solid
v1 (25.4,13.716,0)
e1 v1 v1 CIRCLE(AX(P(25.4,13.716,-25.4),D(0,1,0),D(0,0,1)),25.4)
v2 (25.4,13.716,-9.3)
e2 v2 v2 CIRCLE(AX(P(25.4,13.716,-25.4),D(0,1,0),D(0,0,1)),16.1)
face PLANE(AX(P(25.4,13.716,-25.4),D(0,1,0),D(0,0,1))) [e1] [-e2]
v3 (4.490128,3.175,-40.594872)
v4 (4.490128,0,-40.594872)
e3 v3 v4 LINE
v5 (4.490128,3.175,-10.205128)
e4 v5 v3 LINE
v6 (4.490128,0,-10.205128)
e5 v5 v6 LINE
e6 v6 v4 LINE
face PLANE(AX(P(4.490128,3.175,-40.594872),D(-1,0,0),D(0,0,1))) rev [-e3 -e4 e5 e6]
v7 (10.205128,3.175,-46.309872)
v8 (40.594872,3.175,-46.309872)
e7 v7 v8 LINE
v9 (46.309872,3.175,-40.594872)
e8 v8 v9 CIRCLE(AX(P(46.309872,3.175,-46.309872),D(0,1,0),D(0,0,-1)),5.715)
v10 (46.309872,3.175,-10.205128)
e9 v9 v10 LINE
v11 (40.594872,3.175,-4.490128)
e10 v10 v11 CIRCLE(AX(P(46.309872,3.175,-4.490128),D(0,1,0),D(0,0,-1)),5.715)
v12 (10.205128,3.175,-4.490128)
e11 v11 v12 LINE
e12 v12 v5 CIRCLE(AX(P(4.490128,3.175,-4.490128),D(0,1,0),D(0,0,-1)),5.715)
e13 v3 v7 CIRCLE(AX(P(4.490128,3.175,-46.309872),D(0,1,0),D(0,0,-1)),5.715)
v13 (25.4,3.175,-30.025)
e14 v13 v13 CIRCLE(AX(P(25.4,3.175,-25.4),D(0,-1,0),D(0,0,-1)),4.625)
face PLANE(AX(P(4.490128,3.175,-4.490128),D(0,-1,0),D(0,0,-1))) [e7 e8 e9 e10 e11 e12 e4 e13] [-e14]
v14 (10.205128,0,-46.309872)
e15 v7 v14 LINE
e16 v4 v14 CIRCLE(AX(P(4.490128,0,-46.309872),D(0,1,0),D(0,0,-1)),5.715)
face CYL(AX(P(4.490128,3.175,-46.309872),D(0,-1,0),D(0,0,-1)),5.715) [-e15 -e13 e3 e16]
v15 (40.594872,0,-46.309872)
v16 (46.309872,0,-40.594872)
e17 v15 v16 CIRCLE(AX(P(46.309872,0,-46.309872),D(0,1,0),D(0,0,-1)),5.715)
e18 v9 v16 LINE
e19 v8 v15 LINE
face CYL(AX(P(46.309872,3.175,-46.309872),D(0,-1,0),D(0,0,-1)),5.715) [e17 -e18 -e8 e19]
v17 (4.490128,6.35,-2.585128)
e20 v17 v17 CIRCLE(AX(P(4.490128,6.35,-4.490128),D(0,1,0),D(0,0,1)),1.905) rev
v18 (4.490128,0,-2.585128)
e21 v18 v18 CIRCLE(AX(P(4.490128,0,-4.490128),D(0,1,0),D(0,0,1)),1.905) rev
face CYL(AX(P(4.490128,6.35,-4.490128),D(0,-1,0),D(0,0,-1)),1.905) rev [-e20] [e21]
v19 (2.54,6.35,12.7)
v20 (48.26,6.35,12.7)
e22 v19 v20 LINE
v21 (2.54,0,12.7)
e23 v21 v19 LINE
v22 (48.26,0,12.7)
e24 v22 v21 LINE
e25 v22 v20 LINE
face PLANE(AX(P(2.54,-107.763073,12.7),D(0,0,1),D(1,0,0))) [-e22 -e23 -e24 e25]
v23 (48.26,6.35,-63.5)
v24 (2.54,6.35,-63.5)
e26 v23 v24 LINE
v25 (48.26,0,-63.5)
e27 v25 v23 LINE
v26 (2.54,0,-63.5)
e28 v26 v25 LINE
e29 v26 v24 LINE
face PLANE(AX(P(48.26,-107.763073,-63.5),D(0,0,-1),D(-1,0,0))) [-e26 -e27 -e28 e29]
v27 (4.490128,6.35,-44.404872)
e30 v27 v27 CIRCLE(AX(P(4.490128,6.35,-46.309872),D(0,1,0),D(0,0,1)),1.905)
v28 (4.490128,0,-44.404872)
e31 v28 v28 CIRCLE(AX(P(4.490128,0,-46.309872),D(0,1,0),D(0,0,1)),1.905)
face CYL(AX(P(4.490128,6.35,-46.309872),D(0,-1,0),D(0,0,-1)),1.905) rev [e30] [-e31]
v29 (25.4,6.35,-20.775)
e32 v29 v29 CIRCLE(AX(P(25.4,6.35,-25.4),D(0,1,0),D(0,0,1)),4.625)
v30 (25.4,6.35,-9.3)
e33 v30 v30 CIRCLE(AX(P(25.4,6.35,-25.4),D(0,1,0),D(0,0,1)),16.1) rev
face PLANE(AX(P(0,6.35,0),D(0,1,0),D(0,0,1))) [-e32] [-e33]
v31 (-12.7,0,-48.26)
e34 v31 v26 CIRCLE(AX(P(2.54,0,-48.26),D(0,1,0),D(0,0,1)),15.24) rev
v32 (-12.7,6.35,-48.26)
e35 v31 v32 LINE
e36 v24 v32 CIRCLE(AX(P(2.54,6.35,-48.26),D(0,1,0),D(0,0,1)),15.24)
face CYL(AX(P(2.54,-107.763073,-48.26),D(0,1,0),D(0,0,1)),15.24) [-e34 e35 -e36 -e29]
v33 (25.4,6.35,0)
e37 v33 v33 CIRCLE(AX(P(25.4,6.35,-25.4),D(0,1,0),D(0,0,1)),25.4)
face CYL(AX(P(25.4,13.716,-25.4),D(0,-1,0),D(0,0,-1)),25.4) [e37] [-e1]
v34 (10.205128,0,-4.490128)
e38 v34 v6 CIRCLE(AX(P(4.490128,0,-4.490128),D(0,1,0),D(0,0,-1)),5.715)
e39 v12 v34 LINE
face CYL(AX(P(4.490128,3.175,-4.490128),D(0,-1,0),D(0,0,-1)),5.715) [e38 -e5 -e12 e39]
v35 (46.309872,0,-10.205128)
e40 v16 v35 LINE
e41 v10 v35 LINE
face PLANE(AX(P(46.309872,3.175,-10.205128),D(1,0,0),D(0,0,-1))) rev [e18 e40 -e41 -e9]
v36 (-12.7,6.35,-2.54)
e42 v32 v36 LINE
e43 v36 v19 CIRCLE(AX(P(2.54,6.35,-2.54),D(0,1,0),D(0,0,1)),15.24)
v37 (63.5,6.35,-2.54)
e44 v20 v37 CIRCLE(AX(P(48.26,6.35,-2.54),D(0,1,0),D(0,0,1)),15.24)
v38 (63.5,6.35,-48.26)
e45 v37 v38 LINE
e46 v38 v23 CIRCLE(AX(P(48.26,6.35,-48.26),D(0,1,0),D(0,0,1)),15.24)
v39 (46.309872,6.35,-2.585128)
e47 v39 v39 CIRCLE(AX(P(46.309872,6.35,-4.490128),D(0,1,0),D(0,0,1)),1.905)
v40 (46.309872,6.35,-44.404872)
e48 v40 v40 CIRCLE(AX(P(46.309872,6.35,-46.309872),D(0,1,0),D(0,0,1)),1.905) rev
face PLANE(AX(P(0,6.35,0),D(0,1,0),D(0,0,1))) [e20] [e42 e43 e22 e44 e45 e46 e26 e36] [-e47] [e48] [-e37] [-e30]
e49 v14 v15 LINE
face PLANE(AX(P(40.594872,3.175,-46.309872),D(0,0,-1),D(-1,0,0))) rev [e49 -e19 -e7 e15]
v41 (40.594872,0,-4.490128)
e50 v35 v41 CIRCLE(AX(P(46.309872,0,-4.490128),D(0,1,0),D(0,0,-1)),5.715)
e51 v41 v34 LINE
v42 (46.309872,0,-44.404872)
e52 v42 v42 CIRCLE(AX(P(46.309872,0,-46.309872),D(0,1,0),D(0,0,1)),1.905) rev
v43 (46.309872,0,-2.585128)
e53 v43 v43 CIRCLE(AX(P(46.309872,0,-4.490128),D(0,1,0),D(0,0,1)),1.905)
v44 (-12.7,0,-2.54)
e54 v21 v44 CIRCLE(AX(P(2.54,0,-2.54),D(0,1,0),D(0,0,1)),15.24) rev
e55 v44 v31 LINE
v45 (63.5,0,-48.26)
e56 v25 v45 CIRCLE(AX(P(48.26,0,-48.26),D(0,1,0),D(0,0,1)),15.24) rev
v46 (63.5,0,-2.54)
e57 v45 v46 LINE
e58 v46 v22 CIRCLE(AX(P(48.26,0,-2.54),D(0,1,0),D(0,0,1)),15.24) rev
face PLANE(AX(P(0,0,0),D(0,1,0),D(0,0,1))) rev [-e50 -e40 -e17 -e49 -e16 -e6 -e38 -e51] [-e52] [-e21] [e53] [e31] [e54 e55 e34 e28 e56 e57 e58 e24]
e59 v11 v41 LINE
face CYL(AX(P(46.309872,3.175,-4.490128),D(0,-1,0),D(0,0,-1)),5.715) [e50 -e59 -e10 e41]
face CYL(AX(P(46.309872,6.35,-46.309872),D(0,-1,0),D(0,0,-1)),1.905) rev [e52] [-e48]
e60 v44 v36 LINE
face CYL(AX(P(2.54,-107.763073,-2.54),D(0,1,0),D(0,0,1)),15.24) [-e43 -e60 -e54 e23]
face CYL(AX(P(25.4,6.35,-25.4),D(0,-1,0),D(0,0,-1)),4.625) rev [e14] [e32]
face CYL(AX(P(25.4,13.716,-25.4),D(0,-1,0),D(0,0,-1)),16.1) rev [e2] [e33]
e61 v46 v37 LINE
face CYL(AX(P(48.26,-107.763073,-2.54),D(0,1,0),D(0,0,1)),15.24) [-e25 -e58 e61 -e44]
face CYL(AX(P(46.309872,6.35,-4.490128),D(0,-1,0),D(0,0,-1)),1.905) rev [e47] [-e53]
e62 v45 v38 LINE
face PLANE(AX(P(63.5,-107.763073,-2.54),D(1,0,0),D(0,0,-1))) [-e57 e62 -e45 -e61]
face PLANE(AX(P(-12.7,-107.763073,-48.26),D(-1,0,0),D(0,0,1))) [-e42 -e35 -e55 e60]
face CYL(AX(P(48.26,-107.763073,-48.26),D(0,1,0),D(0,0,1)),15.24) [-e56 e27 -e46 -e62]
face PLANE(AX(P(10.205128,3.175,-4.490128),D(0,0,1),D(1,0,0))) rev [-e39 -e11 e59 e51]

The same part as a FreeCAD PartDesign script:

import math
import FreeCAD as App
import Part
import Sketcher

V = App.Vector
Q = App.Units.Quantity


def edges_at(feature, points):
    """Names of the edges that pass closest to the given points."""
    edges = feature.Shape.Edges
    near = lambda p: min(range(len(edges)), key=lambda i: edges[i].distToShape(Part.Vertex(*p))[0])
    return sorted({f"Edge{near(p) + 1}" for p in points})


def add_polygon(sketch, points):
    """Adds a closed chain of lines whose ends are joined by coincident constraints."""
    first, n = sketch.GeometryCount, len(points)
    for a, b in zip(points, points[1:] + points[:1]):
        sketch.addGeometry(Part.LineSegment(App.Vector(*a, 0), App.Vector(*b, 0)), False)
    for i in range(n):
        sketch.addConstraint(Sketcher.Constraint("Coincident", first + i, 2, first + (i + 1) % n, 1))

doc = App.newDocument("Part")
params = doc.addObject("Spreadsheet::Sheet", "Params")
for row, (alias, value) in enumerate([
    ("sketch1_diameter", "0.15 in"),
    ("sketch1_width", "2 in"),
    ("pad1_length", "0.25 in"),
    ("fillet_radius", "0.1 in"),
    ("sketch2_diameter", "0.15 in"),
    ("sketch2_radius", "0.225 in"),
    ("pocket1_length", "0.125 in"),
    ("sketch3_radius", "0.6 in"),
    ("sketch3_radius2", "0.1 in"),
    ("sketch3_width", "1.8 in"),
    ("pad2_length", "0.25 in"),
    ("sketch4_diameter", "2 in"),
    ("pad3_length", "0.29 in"),
], start=1):
    params.set(f"A{row}", alias)
    params.set(f"B{row}", "=" + value)
    params.setAlias(f"B{row}", alias)

body = doc.addObject("PartDesign::Body", "Body")

sketch1 = doc.addObject("Sketcher::SketchObject", "Sketch")
body.addObject(sketch1)
sketch1.AttachmentSupport = (doc.XZ_Plane, [""])
sketch1.MapMode = "FlatFace"
add_polygon(sketch1, [(0, -50.8), (0, 0), (50.8, 0), (50.8, -50.8)])
sketch1.addGeometry(Part.Circle(V(4.5, -4.5, 0), V(0, 0, 1), 1.9), False)
sketch1.addGeometry(Part.Circle(V(46.3, -4.5, 0), V(0, 0, 1), 1.9), False)
sketch1.addGeometry(Part.Circle(V(4.5, -46.3, 0), V(0, 0, 1), 1.9), False)
sketch1.addGeometry(Part.Circle(V(25.4, -25.4, 0), V(0, 0, 1), 4.6), False)
sketch1.addGeometry(Part.Circle(V(46.3, -46.3, 0), V(0, 0, 1), 1.9), False)
sketch1.addConstraint(Sketcher.Constraint("Vertical", 0))
sketch1.addConstraint(Sketcher.Constraint("Horizontal", 1))
sketch1.addConstraint(Sketcher.Constraint("Vertical", 2))
sketch1.addConstraint(Sketcher.Constraint("Horizontal", 3))
sketch1.addConstraint(Sketcher.Constraint("Coincident", 0, 2, -1, 1))
sketch1.addConstraint(Sketcher.Constraint("Equal", 4, 5))
sketch1.addConstraint(Sketcher.Constraint("Equal", 5, 6))
sketch1.addConstraint(Sketcher.Constraint("Equal", 6, 8))
sketch1.addConstraint(Sketcher.Constraint("Horizontal", 4, 3, 5, 3))
sketch1.addConstraint(Sketcher.Constraint("Horizontal", 6, 3, 8, 3))
sketch1.addConstraint(Sketcher.Constraint("Vertical", 4, 3, 6, 3))
sketch1.addConstraint(Sketcher.Constraint("Vertical", 5, 3, 8, 3))
sketch1.addConstraint(Sketcher.Constraint("Equal", 3, 0))
sketch1.addConstraint(Sketcher.Constraint("Diameter", 4, Q("0.15 in")))
sketch1.addConstraint(Sketcher.Constraint("DistanceX", 1, 1, 1, 2, Q("2 in")))
sketch1.addConstraint(Sketcher.Constraint("DistanceX", -1, 1, 7, 3, Q("1 in")))
sketch1.addConstraint(Sketcher.Constraint("DistanceY", 7, 3, -1, 1, Q("1 in")))
sketch1.addConstraint(Sketcher.Constraint("Diameter", 7, Q("9.25 mm")))
sketch1.addConstraint(Sketcher.Constraint("DistanceX", -1, 1, 4, 3, Q("4.490128 mm")))
sketch1.addConstraint(Sketcher.Constraint("DistanceY", 4, 3, -1, 1, Q("4.490128 mm")))
sketch1.addConstraint(Sketcher.Constraint("DistanceX", -1, 1, 5, 3, Q("46.309872 mm")))
sketch1.addConstraint(Sketcher.Constraint("DistanceY", 6, 3, -1, 1, Q("46.309872 mm")))
sketch1.setExpression("Constraints[17]", "Params.sketch1_diameter")
sketch1.setExpression("Constraints[18]", "Params.sketch1_width")
pad1 = doc.addObject("PartDesign::Pad", "Pad")
body.addObject(pad1)
pad1.Profile = sketch1
pad1.setExpression("Length", "Params.pad1_length")
pad1.Reversed = True
doc.recompute()

fillet = doc.addObject("PartDesign::Fillet", "Fillet")
body.addObject(fillet)
fillet.Base = (pad1, edges_at(pad1, [
    (50.8, 3.175, -50.8),
    (50.8, 3.175, 0),
    (0, 3.175, 0),
    (0, 3.175, -50.8),
]))
fillet.setExpression("Radius", "Params.fillet_radius")

sketch2 = doc.addObject("Sketcher::SketchObject", "Sketch001")
body.addObject(sketch2)
sketch2.AttachmentSupport = (doc.XZ_Plane, [""])
sketch2.MapMode = "FlatFace"
sketch2.addGeometry(Part.Circle(V(4.5, -4.5, 0), V(0, 0, 1), 1.9), False)
sketch2.addGeometry(Part.LineSegment(V(40.6, -4.5, 0), V(10.2, -4.5, 0)), False)
sketch2.addGeometry(Part.ArcOfCircle(Part.Circle(V(4.5, -4.5, 0), V(0, 0, 1), 5.7), math.radians(-90), math.radians(0)), False)
sketch2.addGeometry(Part.LineSegment(V(4.5, -10.2, 0), V(4.5, -40.6, 0)), False)
sketch2.addGeometry(Part.ArcOfCircle(Part.Circle(V(4.5, -46.3, 0), V(0, 0, 1), 5.7), math.radians(0), math.radians(90)), False)
sketch2.addGeometry(Part.LineSegment(V(10.2, -46.3, 0), V(40.6, -46.3, 0)), False)
sketch2.addGeometry(Part.ArcOfCircle(Part.Circle(V(46.3, -46.3, 0), V(0, 0, 1), 5.7), math.radians(90), math.radians(180)), False)
sketch2.addGeometry(Part.LineSegment(V(46.3, -40.6, 0), V(46.3, -10.2, 0)), False)
sketch2.addGeometry(Part.ArcOfCircle(Part.Circle(V(46.3, -4.5, 0), V(0, 0, 1), 5.7), math.radians(-180), math.radians(-90)), False)
sketch2.addConstraint(Sketcher.Constraint("Coincident", 1, 2, 2, 2))
sketch2.addConstraint(Sketcher.Constraint("Coincident", 2, 1, 3, 1))
sketch2.addConstraint(Sketcher.Constraint("Coincident", 3, 2, 4, 2))
sketch2.addConstraint(Sketcher.Constraint("Coincident", 4, 1, 5, 1))
sketch2.addConstraint(Sketcher.Constraint("Coincident", 5, 2, 6, 2))
sketch2.addConstraint(Sketcher.Constraint("Coincident", 6, 1, 7, 1))
sketch2.addConstraint(Sketcher.Constraint("Coincident", 7, 2, 8, 2))
sketch2.addConstraint(Sketcher.Constraint("Coincident", 8, 1, 1, 1))
sketch2.addConstraint(Sketcher.Constraint("Horizontal", 1))
sketch2.addConstraint(Sketcher.Constraint("Vertical", 3))
sketch2.addConstraint(Sketcher.Constraint("Horizontal", 5))
sketch2.addConstraint(Sketcher.Constraint("Vertical", 7))
sketch2.addConstraint(Sketcher.Constraint("Coincident", 2, 3, 0, 3))
sketch2.addConstraint(Sketcher.Constraint("Equal", 2, 4))
sketch2.addConstraint(Sketcher.Constraint("Equal", 4, 6))
sketch2.addConstraint(Sketcher.Constraint("Equal", 6, 8))
sketch2.addConstraint(Sketcher.Constraint("Horizontal", 4, 3, 6, 3))
sketch2.addConstraint(Sketcher.Constraint("Horizontal", 2, 3, 8, 3))
sketch2.addConstraint(Sketcher.Constraint("Horizontal", 8, 3, 1, 2))
sketch2.addConstraint(Sketcher.Constraint("Horizontal", 6, 3, 4, 1))
sketch2.addConstraint(Sketcher.Constraint("Vertical", 2, 3, 4, 3))
sketch2.addConstraint(Sketcher.Constraint("Vertical", 6, 3, 8, 3))
sketch2.addConstraint(Sketcher.Constraint("Vertical", 4, 3, 2, 1))
sketch2.addConstraint(Sketcher.Constraint("Vertical", 8, 3, 6, 1))
sketch2.addConstraint(Sketcher.Constraint("Equal", 5, 3))
sketch2.addConstraint(Sketcher.Constraint("Diameter", 0, Q("0.15 in")))
sketch2.addConstraint(Sketcher.Constraint("Radius", 2, Q("0.225 in")))
sketch2.addConstraint(Sketcher.Constraint("DistanceX", 1, 2, 1, 1, Q("30.389744 mm")))
sketch2.addConstraint(Sketcher.Constraint("DistanceX", -1, 1, 0, 3, Q("4.490128 mm")))
sketch2.addConstraint(Sketcher.Constraint("DistanceY", 0, 3, -1, 1, Q("4.490128 mm")))
sketch2.setExpression("Constraints[25]", "Params.sketch2_diameter")
sketch2.setExpression("Constraints[26]", "Params.sketch2_radius")
pocket1 = doc.addObject("PartDesign::Pocket", "Pocket")
body.addObject(pocket1)
pocket1.Profile = sketch2
pocket1.setExpression("Length", "Params.pocket1_length")

sketch3 = doc.addObject("Sketcher::SketchObject", "Sketch002")
body.addObject(sketch3)
sketch3.AttachmentSupport = (doc.XZ_Plane, [""])
sketch3.MapMode = "FlatFace"
sketch3.AttachmentOffset = App.Placement(V(0, 0, -0.25 * 25.4), App.Rotation())
sketch3.addGeometry(Part.LineSegment(V(63.5, -2.5, 0), V(63.5, -48.3, 0)), False)
sketch3.addGeometry(Part.ArcOfCircle(Part.Circle(V(48.3, -48.3, 0), V(0, 0, 1), 15.2), math.radians(-90), math.radians(0)), False)
sketch3.addGeometry(Part.LineSegment(V(48.3, -63.5, 0), V(2.5, -63.5, 0)), False)
sketch3.addGeometry(Part.ArcOfCircle(Part.Circle(V(2.5, -48.3, 0), V(0, 0, 1), 15.2), math.radians(-180), math.radians(-90)), False)
sketch3.addGeometry(Part.LineSegment(V(-12.7, -48.3, 0), V(-12.7, -2.5, 0)), False)
sketch3.addGeometry(Part.ArcOfCircle(Part.Circle(V(2.5, -2.5, 0), V(0, 0, 1), 15.2), math.radians(90), math.radians(180)), False)
sketch3.addGeometry(Part.LineSegment(V(2.5, 12.7, 0), V(48.3, 12.7, 0)), False)
sketch3.addGeometry(Part.ArcOfCircle(Part.Circle(V(48.3, -2.5, 0), V(0, 0, 1), 15.2), math.radians(0), math.radians(90)), False)
sketch3.addGeometry(Part.LineSegment(V(50.8, -48.3, 0), V(50.8, -2.5, 0)), False)
sketch3.addGeometry(Part.ArcOfCircle(Part.Circle(V(48.3, -2.5, 0), V(0, 0, 1), 2.5), math.radians(0), math.radians(90)), False)
sketch3.addGeometry(Part.LineSegment(V(48.3, 0, 0), V(2.5, 0, 0)), False)
sketch3.addGeometry(Part.ArcOfCircle(Part.Circle(V(2.5, -2.5, 0), V(0, 0, 1), 2.5), math.radians(90), math.radians(180)), False)
sketch3.addGeometry(Part.LineSegment(V(0, -2.5, 0), V(0, -48.3, 0)), False)
sketch3.addGeometry(Part.ArcOfCircle(Part.Circle(V(2.5, -48.3, 0), V(0, 0, 1), 2.5), math.radians(-180), math.radians(-90)), False)
sketch3.addGeometry(Part.LineSegment(V(2.5, -50.8, 0), V(48.3, -50.8, 0)), False)
sketch3.addGeometry(Part.ArcOfCircle(Part.Circle(V(48.3, -48.3, 0), V(0, 0, 1), 2.5), math.radians(-90), math.radians(0)), False)
sketch3.addConstraint(Sketcher.Constraint("Tangent", 0, 2, 1, 2))
sketch3.addConstraint(Sketcher.Constraint("Tangent", 1, 1, 2, 1))
sketch3.addConstraint(Sketcher.Constraint("Tangent", 2, 2, 3, 2))
sketch3.addConstraint(Sketcher.Constraint("Tangent", 3, 1, 4, 1))
sketch3.addConstraint(Sketcher.Constraint("Tangent", 4, 2, 5, 2))
sketch3.addConstraint(Sketcher.Constraint("Tangent", 5, 1, 6, 1))
sketch3.addConstraint(Sketcher.Constraint("Tangent", 6, 2, 7, 2))
sketch3.addConstraint(Sketcher.Constraint("Tangent", 7, 1, 0, 1))
sketch3.addConstraint(Sketcher.Constraint("Tangent", 8, 2, 9, 1))
sketch3.addConstraint(Sketcher.Constraint("Tangent", 9, 2, 10, 1))
sketch3.addConstraint(Sketcher.Constraint("Tangent", 10, 2, 11, 1))
sketch3.addConstraint(Sketcher.Constraint("Tangent", 11, 2, 12, 1))
sketch3.addConstraint(Sketcher.Constraint("Tangent", 12, 2, 13, 1))
sketch3.addConstraint(Sketcher.Constraint("Tangent", 13, 2, 14, 1))
sketch3.addConstraint(Sketcher.Constraint("Tangent", 14, 2, 15, 1))
sketch3.addConstraint(Sketcher.Constraint("Tangent", 15, 2, 8, 1))
sketch3.addConstraint(Sketcher.Constraint("Vertical", 0))
sketch3.addConstraint(Sketcher.Constraint("Horizontal", 2))
sketch3.addConstraint(Sketcher.Constraint("Vertical", 4))
sketch3.addConstraint(Sketcher.Constraint("Horizontal", 6))
sketch3.addConstraint(Sketcher.Constraint("Vertical", 8))
sketch3.addConstraint(Sketcher.Constraint("Horizontal", 10))
sketch3.addConstraint(Sketcher.Constraint("Vertical", 12))
sketch3.addConstraint(Sketcher.Constraint("Horizontal", 14))
sketch3.addConstraint(Sketcher.Constraint("Coincident", 9, 3, 7, 3))
sketch3.addConstraint(Sketcher.Constraint("Coincident", 11, 3, 5, 3))
sketch3.addConstraint(Sketcher.Constraint("Coincident", 13, 3, 3, 3))
sketch3.addConstraint(Sketcher.Constraint("Equal", 1, 3))
sketch3.addConstraint(Sketcher.Constraint("Equal", 3, 5))
sketch3.addConstraint(Sketcher.Constraint("Equal", 5, 7))
sketch3.addConstraint(Sketcher.Constraint("Equal", 13, 15))
sketch3.addConstraint(Sketcher.Constraint("PointOnObject", 9, 2, -1))
sketch3.addConstraint(Sketcher.Constraint("PointOnObject", 11, 2, -2))
sketch3.addConstraint(Sketcher.Constraint("Equal", 14, 0))
sketch3.addConstraint(Sketcher.Constraint("Radius", 1, Q("0.6 in")))
sketch3.addConstraint(Sketcher.Constraint("Radius", 9, Q("0.1 in")))
sketch3.addConstraint(Sketcher.Constraint("DistanceX", 2, 2, 2, 1, Q("1.8 in")))
sketch3.setExpression("Constraints[34]", "Params.sketch3_radius")
sketch3.setExpression("Constraints[35]", "Params.sketch3_radius2")
sketch3.setExpression("Constraints[36]", "Params.sketch3_width")
pad2 = doc.addObject("PartDesign::Pad", "Pad001")
body.addObject(pad2)
pad2.Profile = sketch3
pad2.setExpression("Length", "Params.pad2_length")

sketch4 = doc.addObject("Sketcher::SketchObject", "Sketch003")
body.addObject(sketch4)
sketch4.AttachmentSupport = (doc.XZ_Plane, [""])
sketch4.MapMode = "FlatFace"
sketch4.AttachmentOffset = App.Placement(V(0, 0, -0.25 * 25.4), App.Rotation())
sketch4.addGeometry(Part.Circle(V(25, -25, 0), V(0, 0, 1), 25), False)
sketch4.addGeometry(Part.Circle(V(25, -25, 0), V(0, 0, 1), 16), False)
sketch4.addConstraint(Sketcher.Constraint("Coincident", 1, 3, 0, 3))
sketch4.addConstraint(Sketcher.Constraint("Diameter", 0, Q("2 in")))
sketch4.addConstraint(Sketcher.Constraint("DistanceX", -1, 1, 0, 3, Q("1 in")))
sketch4.addConstraint(Sketcher.Constraint("DistanceY", 0, 3, -1, 1, Q("1 in")))
sketch4.addConstraint(Sketcher.Constraint("Diameter", 1, Q("32.2 mm")))
sketch4.setExpression("Constraints[1]", "Params.sketch4_diameter")
pad3 = doc.addObject("PartDesign::Pad", "Pad002")
body.addObject(pad3)
pad3.Profile = sketch4
pad3.setExpression("Length", "Params.pad3_length")
pad3.Reversed = True

doc.recompute()
